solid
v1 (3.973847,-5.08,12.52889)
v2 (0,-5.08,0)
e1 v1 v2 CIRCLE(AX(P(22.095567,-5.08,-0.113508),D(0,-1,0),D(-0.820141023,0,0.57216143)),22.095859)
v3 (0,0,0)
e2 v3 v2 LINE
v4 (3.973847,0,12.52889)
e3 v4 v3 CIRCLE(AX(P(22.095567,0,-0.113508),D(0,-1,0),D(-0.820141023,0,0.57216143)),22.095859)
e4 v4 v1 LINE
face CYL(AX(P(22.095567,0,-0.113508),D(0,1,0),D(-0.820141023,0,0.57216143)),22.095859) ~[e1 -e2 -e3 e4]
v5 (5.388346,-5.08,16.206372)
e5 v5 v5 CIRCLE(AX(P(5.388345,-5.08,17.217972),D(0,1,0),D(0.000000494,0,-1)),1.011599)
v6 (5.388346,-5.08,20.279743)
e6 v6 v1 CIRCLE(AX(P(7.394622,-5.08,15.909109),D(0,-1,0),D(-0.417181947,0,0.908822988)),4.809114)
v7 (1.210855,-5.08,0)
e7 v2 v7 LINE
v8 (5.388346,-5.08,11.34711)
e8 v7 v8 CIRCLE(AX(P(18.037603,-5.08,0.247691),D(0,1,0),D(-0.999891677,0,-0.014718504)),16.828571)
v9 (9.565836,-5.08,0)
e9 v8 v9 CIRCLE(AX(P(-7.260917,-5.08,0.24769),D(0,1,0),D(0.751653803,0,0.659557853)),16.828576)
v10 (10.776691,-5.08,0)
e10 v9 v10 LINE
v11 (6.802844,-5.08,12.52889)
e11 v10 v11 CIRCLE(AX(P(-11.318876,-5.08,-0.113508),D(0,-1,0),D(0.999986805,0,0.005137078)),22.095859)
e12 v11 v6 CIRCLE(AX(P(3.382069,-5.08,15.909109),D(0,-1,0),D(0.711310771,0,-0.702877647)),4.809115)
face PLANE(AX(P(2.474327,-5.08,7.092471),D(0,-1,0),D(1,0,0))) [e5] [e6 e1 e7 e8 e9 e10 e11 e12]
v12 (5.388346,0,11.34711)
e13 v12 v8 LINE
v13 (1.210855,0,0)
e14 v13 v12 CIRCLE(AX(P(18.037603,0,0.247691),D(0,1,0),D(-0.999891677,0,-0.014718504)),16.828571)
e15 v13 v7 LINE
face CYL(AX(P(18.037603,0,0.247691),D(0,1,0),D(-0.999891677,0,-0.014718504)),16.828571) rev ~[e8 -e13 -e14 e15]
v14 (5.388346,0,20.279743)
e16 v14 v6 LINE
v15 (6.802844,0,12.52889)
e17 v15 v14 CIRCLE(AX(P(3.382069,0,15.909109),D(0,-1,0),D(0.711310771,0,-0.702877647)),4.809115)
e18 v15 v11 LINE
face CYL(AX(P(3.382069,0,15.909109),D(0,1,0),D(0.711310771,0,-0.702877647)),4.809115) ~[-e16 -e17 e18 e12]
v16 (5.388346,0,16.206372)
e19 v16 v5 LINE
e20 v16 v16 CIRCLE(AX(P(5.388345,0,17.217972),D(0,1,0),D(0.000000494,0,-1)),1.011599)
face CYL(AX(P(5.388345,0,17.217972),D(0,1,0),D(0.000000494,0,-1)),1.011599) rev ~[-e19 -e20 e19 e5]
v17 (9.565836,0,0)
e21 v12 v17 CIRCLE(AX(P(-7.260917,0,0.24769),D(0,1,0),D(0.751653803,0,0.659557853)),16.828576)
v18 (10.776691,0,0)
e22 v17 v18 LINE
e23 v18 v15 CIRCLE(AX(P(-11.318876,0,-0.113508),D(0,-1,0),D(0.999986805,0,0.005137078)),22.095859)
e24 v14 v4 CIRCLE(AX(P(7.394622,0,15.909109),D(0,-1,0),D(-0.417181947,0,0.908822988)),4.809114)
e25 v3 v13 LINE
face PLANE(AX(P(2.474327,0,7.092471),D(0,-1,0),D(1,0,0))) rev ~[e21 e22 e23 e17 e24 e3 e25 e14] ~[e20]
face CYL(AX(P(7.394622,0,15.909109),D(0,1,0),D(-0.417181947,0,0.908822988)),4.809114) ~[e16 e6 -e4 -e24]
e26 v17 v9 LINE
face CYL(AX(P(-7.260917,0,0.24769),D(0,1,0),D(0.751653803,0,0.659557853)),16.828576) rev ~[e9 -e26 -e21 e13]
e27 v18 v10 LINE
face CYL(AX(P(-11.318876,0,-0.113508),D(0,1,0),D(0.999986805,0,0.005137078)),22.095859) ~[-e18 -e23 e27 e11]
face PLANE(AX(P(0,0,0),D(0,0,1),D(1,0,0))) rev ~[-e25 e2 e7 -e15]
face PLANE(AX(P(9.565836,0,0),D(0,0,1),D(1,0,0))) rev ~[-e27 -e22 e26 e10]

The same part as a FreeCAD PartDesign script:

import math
import FreeCAD as App
import Part
import Sketcher
from FreeCAD import Vector
Q = App.Units.Quantity

doc = App.newDocument("Part")
body = doc.addObject("PartDesign::Body", "Body")

# Sketch on XZ plane
sketch1 = body.newObject("Sketcher::SketchObject", "Sketch")
sketch1.AttachmentSupport = (doc.getObject("XZ_Plane"), [""])
sketch1.MapMode = "FlatFace"
sketch1.addGeometry([
    Part.ArcOfCircle(Part.Circle(Vector(22.1, -0.1, 0), Vector(0, 0, 1), 22.1), math.radians(145), math.radians(180)),  # 0
    Part.LineSegment(Vector(0, 0, 0), Vector(1.2, 0, 0)),  # 1
    Part.ArcOfCircle(Part.Circle(Vector(18, 0.2, 0), Vector(0, 0, 1), 16.8), math.radians(139), math.radians(181)),  # 2
    Part.ArcOfCircle(Part.Circle(Vector(-7.3, 0.2, 0), Vector(0, 0, 1), 16.8), math.radians(-1), math.radians(41)),  # 3
    Part.LineSegment(Vector(9.6, 0, 0), Vector(10.8, 0, 0)),  # 4
    Part.ArcOfCircle(Part.Circle(Vector(-11.3, -0.1, 0), Vector(0, 0, 1), 22.1), math.radians(0), math.radians(35)),  # 5
    Part.ArcOfCircle(Part.Circle(Vector(3.4, 15.9, 0), Vector(0, 0, 1), 4.8), math.radians(-45), math.radians(65)),  # 6
    Part.ArcOfCircle(Part.Circle(Vector(7.4, 15.9, 0), Vector(0, 0, 1), 4.8), math.radians(115), math.radians(225)),  # 7
    Part.Circle(Vector(5.4, 17.2, 0), Vector(0, 0, 1), 1),  # 8
], False)
sketch1.addConstraint([
    Sketcher.Constraint("Coincident", 0, 2, 1, 1),
    Sketcher.Constraint("Coincident", 1, 2, 2, 2),
    Sketcher.Constraint("Coincident", 2, 1, 3, 2),
    Sketcher.Constraint("Coincident", 3, 1, 4, 1),
    Sketcher.Constraint("Coincident", 4, 2, 5, 1),
    Sketcher.Constraint("Coincident", 5, 2, 6, 1),
    Sketcher.Constraint("Coincident", 6, 2, 7, 1),
    Sketcher.Constraint("Coincident", 7, 2, 0, 1),
    Sketcher.Constraint("Horizontal", 1),
    Sketcher.Constraint("Horizontal", 4),
    Sketcher.Constraint("Coincident", 0, 2, -1, 1),
    Sketcher.Constraint("Equal", 0, 5),
    Sketcher.Constraint("Equal", 6, 7),
    Sketcher.Constraint("PointOnObject", 3, 1, -1),
    Sketcher.Constraint("Horizontal", 2, 3, 3, 3),
    Sketcher.Constraint("Horizontal", 0, 3, 5, 3),
    Sketcher.Constraint("Horizontal", 6, 3, 7, 3),
    Sketcher.Constraint("Horizontal", 5, 2, 7, 2),
    Sketcher.Constraint("Vertical", 8, 3, 2, 1),
    Sketcher.Constraint("Vertical", 2, 1, 6, 2),
    Sketcher.Constraint("Equal", 1, 4),
    Sketcher.Constraint("Diameter", 8, 2.023199),
    Sketcher.Constraint("Radius", 0, 22.095859),
    Sketcher.Constraint("Radius", 2, 16.828571),
    Sketcher.Constraint("Radius", 6, 4.809115),
    Sketcher.Constraint("DistanceY", 0, 3, 2, 3, 0.3612),
    Sketcher.Constraint("DistanceX", 6, 3, 0, 3, 18.713498),
    Sketcher.Constraint("DistanceY", 2, 1, 7, 3, 4.561999),
    Sketcher.Constraint("DistanceX", 2, 1, 5, 2, 1.414498),
    Sketcher.Constraint("DistanceX", 1, 1, 1, 2, 1.210855),
    Sketcher.Constraint("DistanceY", 0, 3, -1, 1, 0.113508),
    Sketcher.Constraint("DistanceY", -1, 1, 8, 3, 17.217972),
])
pad1 = body.newObject("PartDesign::Pad", "Pad")
pad1.Profile = sketch1
pad1.Length = Q("0.2 in")

doc.recompute()
